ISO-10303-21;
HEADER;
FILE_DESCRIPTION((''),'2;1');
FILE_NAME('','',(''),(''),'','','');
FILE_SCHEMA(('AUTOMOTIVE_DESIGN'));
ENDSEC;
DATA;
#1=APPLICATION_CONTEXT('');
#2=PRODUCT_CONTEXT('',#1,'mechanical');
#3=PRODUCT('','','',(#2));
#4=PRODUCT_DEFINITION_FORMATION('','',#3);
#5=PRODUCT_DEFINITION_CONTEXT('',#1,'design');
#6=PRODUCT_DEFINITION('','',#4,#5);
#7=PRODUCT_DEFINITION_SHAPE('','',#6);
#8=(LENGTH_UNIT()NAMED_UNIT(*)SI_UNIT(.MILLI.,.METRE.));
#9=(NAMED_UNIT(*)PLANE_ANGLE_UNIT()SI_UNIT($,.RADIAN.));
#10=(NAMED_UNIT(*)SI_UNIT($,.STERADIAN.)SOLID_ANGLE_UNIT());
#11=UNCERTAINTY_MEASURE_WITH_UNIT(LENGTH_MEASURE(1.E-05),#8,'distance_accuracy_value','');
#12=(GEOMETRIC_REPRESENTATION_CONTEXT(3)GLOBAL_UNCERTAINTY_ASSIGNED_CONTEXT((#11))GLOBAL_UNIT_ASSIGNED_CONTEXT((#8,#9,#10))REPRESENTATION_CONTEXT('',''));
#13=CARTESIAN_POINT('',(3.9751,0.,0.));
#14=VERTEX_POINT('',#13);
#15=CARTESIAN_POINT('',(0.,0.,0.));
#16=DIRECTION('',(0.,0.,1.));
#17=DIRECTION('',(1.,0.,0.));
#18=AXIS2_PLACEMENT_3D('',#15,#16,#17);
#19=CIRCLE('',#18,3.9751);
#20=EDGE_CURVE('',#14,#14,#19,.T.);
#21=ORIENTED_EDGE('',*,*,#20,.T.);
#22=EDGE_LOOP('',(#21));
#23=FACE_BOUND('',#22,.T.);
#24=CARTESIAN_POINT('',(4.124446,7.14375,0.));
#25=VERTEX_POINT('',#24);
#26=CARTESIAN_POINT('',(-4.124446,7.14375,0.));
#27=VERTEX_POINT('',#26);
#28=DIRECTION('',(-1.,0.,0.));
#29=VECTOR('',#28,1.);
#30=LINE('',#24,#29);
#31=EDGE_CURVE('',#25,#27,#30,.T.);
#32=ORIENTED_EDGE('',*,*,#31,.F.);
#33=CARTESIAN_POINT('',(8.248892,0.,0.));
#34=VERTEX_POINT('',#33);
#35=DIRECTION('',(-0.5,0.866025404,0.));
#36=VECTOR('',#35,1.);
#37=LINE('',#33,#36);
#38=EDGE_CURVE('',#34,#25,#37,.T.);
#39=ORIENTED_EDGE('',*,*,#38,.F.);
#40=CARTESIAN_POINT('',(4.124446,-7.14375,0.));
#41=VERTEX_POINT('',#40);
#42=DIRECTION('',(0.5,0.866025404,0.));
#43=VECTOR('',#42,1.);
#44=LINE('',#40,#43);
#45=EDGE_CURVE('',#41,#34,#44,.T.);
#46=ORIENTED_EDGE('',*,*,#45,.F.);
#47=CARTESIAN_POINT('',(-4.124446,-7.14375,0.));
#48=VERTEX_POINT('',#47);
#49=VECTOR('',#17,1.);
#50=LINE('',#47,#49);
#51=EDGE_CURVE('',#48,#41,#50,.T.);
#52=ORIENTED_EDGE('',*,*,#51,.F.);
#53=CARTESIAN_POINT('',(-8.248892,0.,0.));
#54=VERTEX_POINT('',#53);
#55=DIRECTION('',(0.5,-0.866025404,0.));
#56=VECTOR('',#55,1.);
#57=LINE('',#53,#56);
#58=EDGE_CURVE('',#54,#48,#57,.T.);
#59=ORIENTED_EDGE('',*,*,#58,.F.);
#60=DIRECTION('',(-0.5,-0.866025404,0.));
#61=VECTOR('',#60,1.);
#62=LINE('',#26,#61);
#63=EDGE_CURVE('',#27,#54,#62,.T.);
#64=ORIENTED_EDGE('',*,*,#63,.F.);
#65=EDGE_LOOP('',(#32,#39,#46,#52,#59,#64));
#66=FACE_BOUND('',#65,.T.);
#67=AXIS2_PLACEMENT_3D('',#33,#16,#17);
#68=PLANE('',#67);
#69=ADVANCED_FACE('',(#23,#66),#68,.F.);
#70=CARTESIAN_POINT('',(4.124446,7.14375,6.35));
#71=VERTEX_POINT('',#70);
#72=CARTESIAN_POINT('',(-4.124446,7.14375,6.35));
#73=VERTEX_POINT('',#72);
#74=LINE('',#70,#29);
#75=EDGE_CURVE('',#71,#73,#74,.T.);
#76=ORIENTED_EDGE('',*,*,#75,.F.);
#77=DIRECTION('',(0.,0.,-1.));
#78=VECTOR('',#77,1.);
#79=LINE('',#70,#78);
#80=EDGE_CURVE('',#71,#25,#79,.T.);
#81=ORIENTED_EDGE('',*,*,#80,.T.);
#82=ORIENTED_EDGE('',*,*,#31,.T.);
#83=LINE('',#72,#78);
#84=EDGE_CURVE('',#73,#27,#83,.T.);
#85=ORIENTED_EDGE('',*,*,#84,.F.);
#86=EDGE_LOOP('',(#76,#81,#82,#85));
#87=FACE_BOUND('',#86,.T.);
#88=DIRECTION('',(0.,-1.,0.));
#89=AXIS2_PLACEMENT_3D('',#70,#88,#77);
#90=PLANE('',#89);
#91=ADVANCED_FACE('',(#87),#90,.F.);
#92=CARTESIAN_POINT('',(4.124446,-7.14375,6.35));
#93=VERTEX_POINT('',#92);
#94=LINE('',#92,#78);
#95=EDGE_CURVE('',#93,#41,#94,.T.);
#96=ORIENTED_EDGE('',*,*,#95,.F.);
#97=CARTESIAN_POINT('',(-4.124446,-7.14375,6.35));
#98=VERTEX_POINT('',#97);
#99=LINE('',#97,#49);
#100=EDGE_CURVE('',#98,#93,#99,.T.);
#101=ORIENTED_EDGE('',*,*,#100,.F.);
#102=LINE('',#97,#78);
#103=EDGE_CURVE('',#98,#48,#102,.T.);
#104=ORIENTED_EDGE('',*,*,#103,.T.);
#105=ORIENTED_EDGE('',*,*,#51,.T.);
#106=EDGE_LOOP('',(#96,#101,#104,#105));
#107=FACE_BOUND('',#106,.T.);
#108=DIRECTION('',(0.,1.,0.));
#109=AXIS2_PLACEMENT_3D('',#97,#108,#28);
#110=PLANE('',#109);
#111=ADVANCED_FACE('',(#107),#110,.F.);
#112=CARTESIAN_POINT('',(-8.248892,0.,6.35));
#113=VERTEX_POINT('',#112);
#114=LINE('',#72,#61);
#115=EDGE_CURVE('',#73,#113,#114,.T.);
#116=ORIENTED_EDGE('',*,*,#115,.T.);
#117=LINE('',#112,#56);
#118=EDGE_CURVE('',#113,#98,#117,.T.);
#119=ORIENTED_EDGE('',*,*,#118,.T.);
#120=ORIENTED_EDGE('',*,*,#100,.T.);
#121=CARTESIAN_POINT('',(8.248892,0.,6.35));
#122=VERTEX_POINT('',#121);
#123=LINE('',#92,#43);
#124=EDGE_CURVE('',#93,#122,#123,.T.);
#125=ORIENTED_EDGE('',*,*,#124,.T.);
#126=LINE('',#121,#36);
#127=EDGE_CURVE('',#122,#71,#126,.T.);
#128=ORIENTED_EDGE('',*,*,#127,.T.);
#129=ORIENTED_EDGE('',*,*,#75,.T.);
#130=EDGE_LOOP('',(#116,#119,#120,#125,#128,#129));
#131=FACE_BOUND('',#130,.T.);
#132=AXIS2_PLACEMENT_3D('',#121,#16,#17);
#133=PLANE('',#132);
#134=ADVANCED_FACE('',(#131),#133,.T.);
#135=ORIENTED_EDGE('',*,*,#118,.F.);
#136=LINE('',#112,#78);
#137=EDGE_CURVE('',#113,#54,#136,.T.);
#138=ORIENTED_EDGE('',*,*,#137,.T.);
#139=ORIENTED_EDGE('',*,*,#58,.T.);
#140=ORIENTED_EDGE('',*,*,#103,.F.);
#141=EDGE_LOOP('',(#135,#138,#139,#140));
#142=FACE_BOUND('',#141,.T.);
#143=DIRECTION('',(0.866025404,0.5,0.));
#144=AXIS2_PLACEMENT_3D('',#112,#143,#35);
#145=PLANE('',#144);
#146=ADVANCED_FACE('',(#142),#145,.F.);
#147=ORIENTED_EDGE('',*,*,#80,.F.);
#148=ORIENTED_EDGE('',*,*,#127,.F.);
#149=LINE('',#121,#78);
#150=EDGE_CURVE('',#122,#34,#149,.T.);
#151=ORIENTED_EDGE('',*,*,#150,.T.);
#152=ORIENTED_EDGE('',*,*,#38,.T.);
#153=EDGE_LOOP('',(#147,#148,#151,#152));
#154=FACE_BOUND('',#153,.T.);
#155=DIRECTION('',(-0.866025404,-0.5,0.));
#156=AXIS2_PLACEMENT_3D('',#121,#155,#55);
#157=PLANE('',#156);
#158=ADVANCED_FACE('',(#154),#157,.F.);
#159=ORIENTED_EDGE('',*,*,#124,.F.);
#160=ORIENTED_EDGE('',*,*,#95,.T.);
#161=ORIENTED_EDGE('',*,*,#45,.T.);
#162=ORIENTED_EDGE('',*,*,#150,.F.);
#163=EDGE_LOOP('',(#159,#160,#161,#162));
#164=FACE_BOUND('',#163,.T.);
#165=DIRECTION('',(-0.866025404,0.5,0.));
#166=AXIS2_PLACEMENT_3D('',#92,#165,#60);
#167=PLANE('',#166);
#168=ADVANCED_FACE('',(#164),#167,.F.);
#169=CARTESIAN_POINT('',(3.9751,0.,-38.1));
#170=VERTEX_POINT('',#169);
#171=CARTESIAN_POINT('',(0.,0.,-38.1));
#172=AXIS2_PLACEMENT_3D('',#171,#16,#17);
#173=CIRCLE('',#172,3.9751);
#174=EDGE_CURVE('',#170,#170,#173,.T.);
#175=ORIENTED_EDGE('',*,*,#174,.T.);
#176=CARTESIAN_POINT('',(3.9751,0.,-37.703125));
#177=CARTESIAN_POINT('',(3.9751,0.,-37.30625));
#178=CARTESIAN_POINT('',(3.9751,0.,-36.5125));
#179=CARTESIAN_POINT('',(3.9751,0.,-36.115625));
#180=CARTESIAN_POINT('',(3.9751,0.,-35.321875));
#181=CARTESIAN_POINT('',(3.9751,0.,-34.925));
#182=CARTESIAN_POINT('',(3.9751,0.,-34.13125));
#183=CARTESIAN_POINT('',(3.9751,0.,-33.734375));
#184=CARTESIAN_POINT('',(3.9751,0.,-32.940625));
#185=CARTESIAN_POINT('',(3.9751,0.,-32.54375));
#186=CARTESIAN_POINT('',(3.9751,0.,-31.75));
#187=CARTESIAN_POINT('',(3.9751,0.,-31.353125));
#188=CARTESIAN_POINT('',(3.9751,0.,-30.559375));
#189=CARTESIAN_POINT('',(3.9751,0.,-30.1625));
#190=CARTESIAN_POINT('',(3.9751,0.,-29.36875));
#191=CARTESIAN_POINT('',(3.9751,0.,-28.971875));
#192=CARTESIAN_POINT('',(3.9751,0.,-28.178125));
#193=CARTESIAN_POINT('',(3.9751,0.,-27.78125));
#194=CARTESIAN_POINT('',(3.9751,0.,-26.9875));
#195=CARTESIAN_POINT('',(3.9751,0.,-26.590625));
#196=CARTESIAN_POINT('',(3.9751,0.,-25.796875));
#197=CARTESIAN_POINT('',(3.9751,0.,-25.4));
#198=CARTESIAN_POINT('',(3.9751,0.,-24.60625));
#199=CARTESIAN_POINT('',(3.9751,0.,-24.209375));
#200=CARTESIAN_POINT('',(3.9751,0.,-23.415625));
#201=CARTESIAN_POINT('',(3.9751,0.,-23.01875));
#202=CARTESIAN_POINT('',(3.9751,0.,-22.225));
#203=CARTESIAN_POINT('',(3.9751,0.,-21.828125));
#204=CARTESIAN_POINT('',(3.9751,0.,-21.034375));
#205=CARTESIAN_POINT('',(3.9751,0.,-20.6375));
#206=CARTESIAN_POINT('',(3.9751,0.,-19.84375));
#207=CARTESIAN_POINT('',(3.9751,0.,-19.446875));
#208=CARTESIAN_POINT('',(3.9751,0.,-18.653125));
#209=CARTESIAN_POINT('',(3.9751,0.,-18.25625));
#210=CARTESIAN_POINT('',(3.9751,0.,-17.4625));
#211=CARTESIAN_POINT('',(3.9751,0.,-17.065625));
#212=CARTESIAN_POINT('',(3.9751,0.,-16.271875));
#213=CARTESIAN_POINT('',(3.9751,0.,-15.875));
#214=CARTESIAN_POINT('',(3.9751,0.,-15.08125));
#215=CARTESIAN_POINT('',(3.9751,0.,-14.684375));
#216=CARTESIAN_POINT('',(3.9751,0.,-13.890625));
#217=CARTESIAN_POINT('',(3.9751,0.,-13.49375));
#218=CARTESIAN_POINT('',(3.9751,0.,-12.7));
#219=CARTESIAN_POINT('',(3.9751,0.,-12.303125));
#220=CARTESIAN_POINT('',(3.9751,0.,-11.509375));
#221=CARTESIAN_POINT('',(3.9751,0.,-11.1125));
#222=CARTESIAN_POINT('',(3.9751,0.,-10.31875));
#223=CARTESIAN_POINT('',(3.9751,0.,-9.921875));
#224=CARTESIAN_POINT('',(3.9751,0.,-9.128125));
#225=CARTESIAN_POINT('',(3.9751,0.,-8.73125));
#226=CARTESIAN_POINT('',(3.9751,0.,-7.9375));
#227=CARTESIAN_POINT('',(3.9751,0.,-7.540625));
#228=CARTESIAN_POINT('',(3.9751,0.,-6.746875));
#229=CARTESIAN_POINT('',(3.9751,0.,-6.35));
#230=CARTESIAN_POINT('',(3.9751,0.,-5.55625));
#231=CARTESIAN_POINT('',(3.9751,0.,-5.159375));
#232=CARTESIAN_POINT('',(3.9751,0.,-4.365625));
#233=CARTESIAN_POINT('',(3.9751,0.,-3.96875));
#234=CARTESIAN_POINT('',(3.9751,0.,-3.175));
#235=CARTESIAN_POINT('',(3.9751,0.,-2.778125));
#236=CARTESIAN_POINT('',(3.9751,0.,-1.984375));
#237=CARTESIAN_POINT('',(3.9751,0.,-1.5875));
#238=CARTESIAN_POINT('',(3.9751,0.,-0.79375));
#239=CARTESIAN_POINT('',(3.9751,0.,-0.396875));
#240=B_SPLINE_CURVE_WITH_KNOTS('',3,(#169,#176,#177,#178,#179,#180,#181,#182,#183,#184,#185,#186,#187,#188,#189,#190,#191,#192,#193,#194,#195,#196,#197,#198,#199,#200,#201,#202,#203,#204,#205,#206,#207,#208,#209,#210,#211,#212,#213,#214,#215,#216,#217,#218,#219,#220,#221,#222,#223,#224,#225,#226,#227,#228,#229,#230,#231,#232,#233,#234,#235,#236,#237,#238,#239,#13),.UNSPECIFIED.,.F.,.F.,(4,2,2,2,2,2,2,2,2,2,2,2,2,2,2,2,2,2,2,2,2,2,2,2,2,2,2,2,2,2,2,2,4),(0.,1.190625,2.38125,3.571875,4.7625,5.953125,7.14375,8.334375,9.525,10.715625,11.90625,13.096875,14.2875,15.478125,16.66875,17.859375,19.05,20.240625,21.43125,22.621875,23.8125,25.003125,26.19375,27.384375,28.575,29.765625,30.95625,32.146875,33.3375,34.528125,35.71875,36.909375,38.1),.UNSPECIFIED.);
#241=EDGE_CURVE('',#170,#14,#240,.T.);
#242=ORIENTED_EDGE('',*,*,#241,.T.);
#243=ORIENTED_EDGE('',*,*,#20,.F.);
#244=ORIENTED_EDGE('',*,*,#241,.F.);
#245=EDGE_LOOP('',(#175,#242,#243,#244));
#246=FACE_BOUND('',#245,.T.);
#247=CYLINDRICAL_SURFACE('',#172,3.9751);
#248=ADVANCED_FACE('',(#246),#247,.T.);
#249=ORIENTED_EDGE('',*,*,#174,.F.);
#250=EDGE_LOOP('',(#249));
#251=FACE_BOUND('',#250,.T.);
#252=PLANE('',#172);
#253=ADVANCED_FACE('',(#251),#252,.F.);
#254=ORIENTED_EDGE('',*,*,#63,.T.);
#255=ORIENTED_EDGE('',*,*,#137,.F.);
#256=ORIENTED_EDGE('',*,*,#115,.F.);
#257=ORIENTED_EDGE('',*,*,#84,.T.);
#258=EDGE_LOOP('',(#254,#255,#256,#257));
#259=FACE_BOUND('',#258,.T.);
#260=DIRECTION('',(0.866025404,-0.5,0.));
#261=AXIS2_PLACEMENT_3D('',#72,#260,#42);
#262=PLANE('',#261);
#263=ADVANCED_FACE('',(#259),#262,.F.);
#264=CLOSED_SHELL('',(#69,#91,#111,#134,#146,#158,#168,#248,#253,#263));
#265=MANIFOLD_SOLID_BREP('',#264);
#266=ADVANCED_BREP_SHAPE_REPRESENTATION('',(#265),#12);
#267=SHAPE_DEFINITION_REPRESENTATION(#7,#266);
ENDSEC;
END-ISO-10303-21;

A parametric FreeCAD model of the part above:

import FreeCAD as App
import Part
import Sketcher
Q = App.Units.Quantity

doc = App.newDocument("Part")
body = doc.addObject("PartDesign::Body", "Body")

# Sketch on XY plane
sketch1 = body.newObject("Sketcher::SketchObject", "Sketch")
sketch1.AttachmentSupport = (doc.getObject("XY_Plane"), [""])
sketch1.MapMode = "FlatFace"
sketch1.addGeometry(Part.Circle(App.Vector(0, 0, 0), App.Vector(0, 0, 1), 3.9751), False)
sketch1.addConstraint([
    Sketcher.Constraint("Coincident", 0, 3, -1, 1),
    Sketcher.Constraint("Diameter", 0, Q("0.313 in")),
])
pad1 = body.newObject("PartDesign::Pad", "Pad")
pad1.Profile = sketch1
pad1.Length = Q("1.5 in")
pad1.Reversed = True

# Sketch on XY plane
sketch2 = body.newObject("Sketcher::SketchObject", "Sketch001")
sketch2.AttachmentSupport = (doc.getObject("XY_Plane"), [""])
sketch2.MapMode = "FlatFace"
sketch2.addGeometry([
    Part.LineSegment(App.Vector(8.248892, 0, 0), App.Vector(4.124446, 7.14375, 0)),  # 0
    Part.LineSegment(App.Vector(4.124446, 7.14375, 0), App.Vector(-4.124446, 7.14375, 0)),  # 1
    Part.LineSegment(App.Vector(-4.124446, 7.14375, 0), App.Vector(-8.248892, 0, 0)),  # 2
    Part.LineSegment(App.Vector(-8.248892, 0, 0), App.Vector(-4.124446, -7.14375, 0)),  # 3
    Part.LineSegment(App.Vector(-4.124446, -7.14375, 0), App.Vector(4.124446, -7.14375, 0)),  # 4
    Part.LineSegment(App.Vector(4.124446, -7.14375, 0), App.Vector(8.248892, 0, 0)),  # 5
], False)
sketch2.addConstraint([
    Sketcher.Constraint("Coincident", 0, 2, 1, 1),
    Sketcher.Constraint("Coincident", 1, 2, 2, 1),
    Sketcher.Constraint("Coincident", 2, 2, 3, 1),
    Sketcher.Constraint("Coincident", 3, 2, 4, 1),
    Sketcher.Constraint("Coincident", 4, 2, 5, 1),
    Sketcher.Constraint("Coincident", 5, 2, 0, 1),
    Sketcher.Constraint("Horizontal", 1),
    Sketcher.Constraint("Horizontal", 4),
    Sketcher.Constraint("Symmetric", 0, 2, 3, 2, -1, 1),
    Sketcher.Constraint("Symmetric", 2, 2, 5, 2, -1, 1),
    Sketcher.Constraint("PointOnObject", 2, 2, -1),
    Sketcher.Constraint("Parallel", 2, 5),
    Sketcher.Constraint("Vertical", 1, 2, 3, 2),
    Sketcher.Constraint("Angle", 0, Q("120 deg")),
    Sketcher.Constraint("DistanceY", -1, 1, 0, 2, Q("0.28125 in")),
    Sketcher.Constraint("DistanceX", 1, 2, 1, 1, 8.248892),
])
pad2 = body.newObject("PartDesign::Pad", "Pad001")
pad2.Profile = sketch2
pad2.Length = Q("0.25 in")

doc.recompute()
